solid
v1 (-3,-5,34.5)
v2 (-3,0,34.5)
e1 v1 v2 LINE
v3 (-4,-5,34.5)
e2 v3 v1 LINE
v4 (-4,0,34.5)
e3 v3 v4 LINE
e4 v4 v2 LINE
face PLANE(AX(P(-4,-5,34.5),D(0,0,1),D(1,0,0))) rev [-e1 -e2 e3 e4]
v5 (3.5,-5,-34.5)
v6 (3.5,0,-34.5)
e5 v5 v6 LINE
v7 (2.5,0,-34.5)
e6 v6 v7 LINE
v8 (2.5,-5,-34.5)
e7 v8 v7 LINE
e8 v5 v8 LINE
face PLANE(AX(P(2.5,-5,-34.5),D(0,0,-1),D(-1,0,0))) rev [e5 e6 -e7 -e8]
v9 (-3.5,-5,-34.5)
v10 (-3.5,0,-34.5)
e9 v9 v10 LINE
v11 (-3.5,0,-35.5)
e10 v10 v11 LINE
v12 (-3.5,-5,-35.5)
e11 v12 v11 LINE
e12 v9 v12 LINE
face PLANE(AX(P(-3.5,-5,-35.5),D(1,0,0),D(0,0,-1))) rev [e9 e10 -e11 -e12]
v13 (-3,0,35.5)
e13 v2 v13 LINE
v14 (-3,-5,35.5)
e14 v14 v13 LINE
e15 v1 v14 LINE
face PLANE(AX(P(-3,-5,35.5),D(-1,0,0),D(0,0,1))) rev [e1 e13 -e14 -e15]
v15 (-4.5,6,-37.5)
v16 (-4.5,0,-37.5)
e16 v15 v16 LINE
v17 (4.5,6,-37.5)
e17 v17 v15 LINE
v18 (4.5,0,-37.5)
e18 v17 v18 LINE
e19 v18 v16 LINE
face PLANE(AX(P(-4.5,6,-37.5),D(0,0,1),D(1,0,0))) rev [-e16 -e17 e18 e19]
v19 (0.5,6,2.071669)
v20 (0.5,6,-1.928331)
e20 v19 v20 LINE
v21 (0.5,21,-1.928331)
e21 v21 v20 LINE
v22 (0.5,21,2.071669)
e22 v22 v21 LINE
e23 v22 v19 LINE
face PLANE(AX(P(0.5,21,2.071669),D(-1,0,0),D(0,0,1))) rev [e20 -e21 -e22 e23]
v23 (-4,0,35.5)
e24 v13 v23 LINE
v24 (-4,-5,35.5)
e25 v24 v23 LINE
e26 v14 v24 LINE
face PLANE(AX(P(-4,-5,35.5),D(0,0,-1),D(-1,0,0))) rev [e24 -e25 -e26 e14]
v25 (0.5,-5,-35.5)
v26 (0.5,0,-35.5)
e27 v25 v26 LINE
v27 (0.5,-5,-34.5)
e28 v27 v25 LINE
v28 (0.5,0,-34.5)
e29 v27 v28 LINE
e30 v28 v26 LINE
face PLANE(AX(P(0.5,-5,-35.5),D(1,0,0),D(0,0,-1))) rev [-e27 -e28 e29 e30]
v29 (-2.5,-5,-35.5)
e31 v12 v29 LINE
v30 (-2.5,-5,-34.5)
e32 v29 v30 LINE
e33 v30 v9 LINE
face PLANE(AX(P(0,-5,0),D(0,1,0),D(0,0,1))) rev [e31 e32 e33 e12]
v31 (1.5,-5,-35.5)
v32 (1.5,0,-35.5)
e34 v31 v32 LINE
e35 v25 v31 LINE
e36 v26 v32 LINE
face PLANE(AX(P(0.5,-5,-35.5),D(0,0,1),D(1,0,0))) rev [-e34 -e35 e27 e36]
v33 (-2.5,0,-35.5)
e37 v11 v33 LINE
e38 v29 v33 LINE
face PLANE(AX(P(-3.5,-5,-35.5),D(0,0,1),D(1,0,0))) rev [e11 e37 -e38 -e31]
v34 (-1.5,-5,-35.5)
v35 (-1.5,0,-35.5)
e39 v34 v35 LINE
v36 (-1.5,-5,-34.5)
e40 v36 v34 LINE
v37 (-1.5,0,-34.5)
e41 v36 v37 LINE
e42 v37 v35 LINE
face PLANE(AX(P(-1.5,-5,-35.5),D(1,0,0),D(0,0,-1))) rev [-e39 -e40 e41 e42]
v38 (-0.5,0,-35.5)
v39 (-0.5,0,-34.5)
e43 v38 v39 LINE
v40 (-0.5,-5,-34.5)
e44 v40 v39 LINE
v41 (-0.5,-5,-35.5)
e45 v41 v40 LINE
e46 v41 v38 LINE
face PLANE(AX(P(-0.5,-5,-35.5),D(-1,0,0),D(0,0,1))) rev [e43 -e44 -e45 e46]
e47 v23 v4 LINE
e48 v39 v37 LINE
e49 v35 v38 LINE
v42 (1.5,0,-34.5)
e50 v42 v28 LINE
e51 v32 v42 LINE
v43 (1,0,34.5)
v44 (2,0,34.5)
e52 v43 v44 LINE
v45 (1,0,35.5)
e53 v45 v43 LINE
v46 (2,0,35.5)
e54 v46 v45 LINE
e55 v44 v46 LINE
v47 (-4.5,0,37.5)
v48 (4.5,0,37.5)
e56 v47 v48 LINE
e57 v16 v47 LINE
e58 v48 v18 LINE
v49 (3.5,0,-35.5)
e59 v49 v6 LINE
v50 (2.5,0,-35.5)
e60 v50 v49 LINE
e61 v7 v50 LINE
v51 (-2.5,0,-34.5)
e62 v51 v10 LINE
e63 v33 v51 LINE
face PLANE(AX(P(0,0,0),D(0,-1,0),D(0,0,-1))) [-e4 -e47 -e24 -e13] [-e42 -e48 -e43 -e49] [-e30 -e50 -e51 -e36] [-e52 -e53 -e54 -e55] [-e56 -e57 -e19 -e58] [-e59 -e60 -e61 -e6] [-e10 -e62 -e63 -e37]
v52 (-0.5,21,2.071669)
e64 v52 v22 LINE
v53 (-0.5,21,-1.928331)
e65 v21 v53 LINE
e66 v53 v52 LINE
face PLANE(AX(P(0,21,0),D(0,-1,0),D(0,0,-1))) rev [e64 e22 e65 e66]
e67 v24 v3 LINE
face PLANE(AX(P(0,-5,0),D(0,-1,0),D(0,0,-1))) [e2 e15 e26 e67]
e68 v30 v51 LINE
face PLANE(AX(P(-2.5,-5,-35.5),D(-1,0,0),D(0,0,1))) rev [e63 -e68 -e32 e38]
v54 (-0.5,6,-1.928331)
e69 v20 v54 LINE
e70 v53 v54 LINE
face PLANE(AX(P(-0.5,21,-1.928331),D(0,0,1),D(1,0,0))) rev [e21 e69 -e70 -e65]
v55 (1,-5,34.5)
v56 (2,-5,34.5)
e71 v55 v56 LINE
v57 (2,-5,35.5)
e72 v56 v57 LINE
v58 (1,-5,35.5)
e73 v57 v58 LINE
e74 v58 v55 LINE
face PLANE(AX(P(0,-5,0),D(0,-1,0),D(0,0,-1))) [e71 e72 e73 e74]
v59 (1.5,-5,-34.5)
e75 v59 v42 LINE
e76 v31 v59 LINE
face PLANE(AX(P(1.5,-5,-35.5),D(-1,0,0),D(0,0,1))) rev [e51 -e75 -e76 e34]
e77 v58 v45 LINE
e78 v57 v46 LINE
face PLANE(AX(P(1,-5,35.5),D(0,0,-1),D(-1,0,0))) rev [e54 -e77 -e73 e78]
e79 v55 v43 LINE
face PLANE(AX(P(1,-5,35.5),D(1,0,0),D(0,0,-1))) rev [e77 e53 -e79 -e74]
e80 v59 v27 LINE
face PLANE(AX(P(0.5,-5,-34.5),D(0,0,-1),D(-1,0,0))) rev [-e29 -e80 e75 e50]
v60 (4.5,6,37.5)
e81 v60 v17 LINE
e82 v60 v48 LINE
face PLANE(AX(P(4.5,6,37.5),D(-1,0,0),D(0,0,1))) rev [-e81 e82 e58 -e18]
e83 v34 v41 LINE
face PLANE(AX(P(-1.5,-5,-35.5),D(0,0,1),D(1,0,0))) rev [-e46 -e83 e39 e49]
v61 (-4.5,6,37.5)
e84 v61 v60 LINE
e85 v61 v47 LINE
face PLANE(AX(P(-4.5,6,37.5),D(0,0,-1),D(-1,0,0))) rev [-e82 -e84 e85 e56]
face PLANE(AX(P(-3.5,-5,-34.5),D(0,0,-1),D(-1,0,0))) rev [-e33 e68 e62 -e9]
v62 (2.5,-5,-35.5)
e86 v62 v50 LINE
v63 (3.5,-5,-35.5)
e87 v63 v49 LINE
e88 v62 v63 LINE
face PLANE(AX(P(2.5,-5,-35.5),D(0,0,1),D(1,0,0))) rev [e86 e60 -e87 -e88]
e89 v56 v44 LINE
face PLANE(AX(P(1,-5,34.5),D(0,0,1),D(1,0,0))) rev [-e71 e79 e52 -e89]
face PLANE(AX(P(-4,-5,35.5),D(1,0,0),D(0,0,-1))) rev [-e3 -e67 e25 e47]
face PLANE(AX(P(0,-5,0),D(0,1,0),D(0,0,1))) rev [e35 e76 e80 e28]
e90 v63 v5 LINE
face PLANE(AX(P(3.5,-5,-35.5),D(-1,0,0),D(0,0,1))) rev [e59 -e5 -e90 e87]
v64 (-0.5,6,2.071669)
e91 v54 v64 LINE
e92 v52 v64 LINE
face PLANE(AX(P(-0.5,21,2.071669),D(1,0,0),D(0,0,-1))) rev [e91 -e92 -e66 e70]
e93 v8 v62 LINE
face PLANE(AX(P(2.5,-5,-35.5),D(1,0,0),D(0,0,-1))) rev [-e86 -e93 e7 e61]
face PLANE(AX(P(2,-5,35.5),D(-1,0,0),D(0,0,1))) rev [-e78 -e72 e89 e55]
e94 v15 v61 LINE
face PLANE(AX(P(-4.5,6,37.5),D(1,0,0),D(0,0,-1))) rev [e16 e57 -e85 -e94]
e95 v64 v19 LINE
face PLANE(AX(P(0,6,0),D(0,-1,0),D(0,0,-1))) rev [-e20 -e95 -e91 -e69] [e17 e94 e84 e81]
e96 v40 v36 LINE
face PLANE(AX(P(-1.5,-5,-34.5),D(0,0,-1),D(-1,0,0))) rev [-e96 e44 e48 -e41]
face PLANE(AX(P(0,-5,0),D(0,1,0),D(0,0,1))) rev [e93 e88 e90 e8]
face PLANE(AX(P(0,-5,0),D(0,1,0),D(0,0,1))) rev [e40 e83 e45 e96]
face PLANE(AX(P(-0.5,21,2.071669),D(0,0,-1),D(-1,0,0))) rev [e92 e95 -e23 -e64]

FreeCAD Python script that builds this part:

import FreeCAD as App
import Part
import Sketcher


def add_polygon(sketch, points):
    """Adds a closed chain of lines whose ends are joined by coincident constraints."""
    first, n = sketch.GeometryCount, len(points)
    for a, b in zip(points, points[1:] + points[:1]):
        sketch.addGeometry(Part.LineSegment(App.Vector(*a, 0), App.Vector(*b, 0)), False)
    for i in range(n):
        sketch.addConstraint(Sketcher.Constraint("Coincident", first + i, 2, first + (i + 1) % n, 1))

doc = App.newDocument("Part")
body = doc.addObject("PartDesign::Body", "Body")

sketch1 = doc.addObject("Sketcher::SketchObject", "Sketch")
body.addObject(sketch1)
sketch1.AttachmentSupport = (doc.XZ_Plane, [""])
sketch1.MapMode = "FlatFace"
add_polygon(sketch1, [(-4, -38), (-4, 38), (4, 38), (4, -38)])
sketch1.addConstraint([
    Sketcher.Constraint("Vertical", 0),
    Sketcher.Constraint("Horizontal", 1),
    Sketcher.Constraint("Vertical", 2),
    Sketcher.Constraint("Horizontal", 3),
    Sketcher.Constraint("Symmetric", 0, 2, 2, 2, -1, 1),
    Sketcher.Constraint("DistanceX", 1, 1, 1, 2, 9.0),
    Sketcher.Constraint("DistanceY", 0, 1, 0, 2, 75.0),
])
pad1 = doc.addObject("PartDesign::Pad", "Pad")
body.addObject(pad1)
pad1.Profile = sketch1
pad1.Length = 6
pad1.Reversed = True

sketch2 = doc.addObject("Sketcher::SketchObject", "Sketch001")
body.addObject(sketch2)
sketch2.AttachmentSupport = (doc.XZ_Plane, [""])
sketch2.MapMode = "FlatFace"
sketch2.AttachmentOffset = App.Placement(App.Vector(0, 0, -6), App.Rotation())
add_polygon(sketch2, [(-0.5, -1.9), (-0.5, 2.1), (0.5, 2.1), (0.5, -1.9)])
sketch2.addConstraint([
    Sketcher.Constraint("Vertical", 0),
    Sketcher.Constraint("Horizontal", 1),
    Sketcher.Constraint("Vertical", 2),
    Sketcher.Constraint("Horizontal", 3),
    Sketcher.Constraint("DistanceX", 1, 1, 1, 2, 1.0),
    Sketcher.Constraint("DistanceY", 0, 1, 0, 2, 4.0),
    Sketcher.Constraint("DistanceX", 0, 2, -1, 1, 0.5),
    Sketcher.Constraint("DistanceY", -1, 1, 0, 2, 2.071669),
])
pad2 = doc.addObject("PartDesign::Pad", "Pad001")
body.addObject(pad2)
pad2.Profile = sketch2
pad2.Length = 15
pad2.Reversed = True

sketch3 = doc.addObject("Sketcher::SketchObject", "Sketch002")
body.addObject(sketch3)
sketch3.AttachmentSupport = (doc.XZ_Plane, [""])
sketch3.MapMode = "FlatFace"
add_polygon(sketch3, [(-4, 35.5), (-4, 34.5), (-3, 34.5), (-3, 35.5)])
add_polygon(sketch3, [(1, 35.5), (1, 34.5), (2, 34.5), (2, 35.5)])
add_polygon(sketch3, [(-3.5, -34.5), (-3.5, -35.5), (-2.5, -35.5), (-2.5, -34.5)])
add_polygon(sketch3, [(-1.5, -34.5), (-1.5, -35.5), (-0.5, -35.5), (-0.5, -34.5)])
add_polygon(sketch3, [(0.5, -34.5), (0.5, -35.5), (1.5, -35.5), (1.5, -34.5)])
add_polygon(sketch3, [(2.5, -34.5), (2.5, -35.5), (3.5, -35.5), (3.5, -34.5)])
sketch3.addConstraint([
    Sketcher.Constraint("Vertical", 0),
    Sketcher.Constraint("Horizontal", 1),
    Sketcher.Constraint("Vertical", 2),
    Sketcher.Constraint("Horizontal", 3),
    Sketcher.Constraint("Vertical", 4),
    Sketcher.Constraint("Horizontal", 5),
    Sketcher.Constraint("Vertical", 6),
    Sketcher.Constraint("Horizontal", 7),
    Sketcher.Constraint("Vertical", 8),
    Sketcher.Constraint("Horizontal", 9),
    Sketcher.Constraint("Vertical", 10),
    Sketcher.Constraint("Horizontal", 11),
    Sketcher.Constraint("Vertical", 12),
    Sketcher.Constraint("Horizontal", 13),
    Sketcher.Constraint("Vertical", 14),
    Sketcher.Constraint("Horizontal", 15),
    Sketcher.Constraint("Vertical", 16),
    Sketcher.Constraint("Horizontal", 17),
    Sketcher.Constraint("Vertical", 18),
    Sketcher.Constraint("Horizontal", 19),
    Sketcher.Constraint("Vertical", 20),
    Sketcher.Constraint("Horizontal", 21),
    Sketcher.Constraint("Vertical", 22),
    Sketcher.Constraint("Horizontal", 23),
    Sketcher.Constraint("Symmetric", 13, 2, 16, 2, -2),
    Sketcher.Constraint("Symmetric", 15, 2, 18, 2, -2),
    Sketcher.Constraint("Symmetric", 9, 2, 20, 2, -2),
    Sketcher.Constraint("Symmetric", 11, 2, 22, 2, -2),
    Sketcher.Constraint("Horizontal", 1, 2, 4, 2),
    Sketcher.Constraint("Horizontal", 3, 2, 6, 2),
    Sketcher.Constraint("Horizontal", 9, 2, 12, 2),
    Sketcher.Constraint("Horizontal", 11, 2, 14, 2),
    Sketcher.Constraint("Equal", 3, 5),
    Sketcher.Constraint("Equal", 7, 9),
    Sketcher.Constraint("Equal", 11, 13),
    Sketcher.Constraint("Equal", 23, 0),
    Sketcher.Constraint("Equal", 6, 8),
    Sketcher.Constraint("DistanceX", 1, 1, 1, 2, 1.0),
    Sketcher.Constraint("DistanceX", 0, 2, -1, 1, 4.0),
    Sketcher.Constraint("DistanceX", -1, 1, 4, 2, 1.0),
    Sketcher.Constraint("DistanceY", 8, 2, 0, 2, 70.0),
    Sketcher.Constraint("DistanceX", 9, 2, 12, 2, 1.0),
    Sketcher.Constraint("DistanceX", 13, 2, 16, 2, 1.0),
    Sketcher.Constraint("DistanceY", -1, 1, 0, 2, 34.5),
])
pad3 = doc.addObject("PartDesign::Pad", "Pad002")
body.addObject(pad3)
pad3.Profile = sketch3
pad3.Length = 5

doc.recompute()
